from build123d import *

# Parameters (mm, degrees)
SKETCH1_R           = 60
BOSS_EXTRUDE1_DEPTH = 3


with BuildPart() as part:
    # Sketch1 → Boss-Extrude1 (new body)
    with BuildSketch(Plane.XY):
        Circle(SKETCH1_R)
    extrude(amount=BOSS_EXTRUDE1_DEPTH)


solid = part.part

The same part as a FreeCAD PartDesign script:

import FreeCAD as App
import Part
import Sketcher

V = App.Vector
Q = App.Units.Quantity

doc = App.newDocument("Part")
body = doc.addObject("PartDesign::Body", "Body")

sketch1 = body.newObject("Sketcher::SketchObject", "Sketch")
sketch1.AttachmentSupport = (doc.getObject("XY_Plane"), [""])
sketch1.MapMode = "FlatFace"
sketch1.addGeometry(Part.Circle(V(0, 0, 0), V(0, 0, 1), 60), False)
sketch1.addConstraint([
    Sketcher.Constraint("Coincident", 0, 3, -1, 1),
    Sketcher.Constraint("Diameter", 0, Q("120 mm")),
])
pad1 = body.newObject("PartDesign::Pad", "Pad")
pad1.Profile = sketch1
pad1.Length = 3

doc.recompute()
